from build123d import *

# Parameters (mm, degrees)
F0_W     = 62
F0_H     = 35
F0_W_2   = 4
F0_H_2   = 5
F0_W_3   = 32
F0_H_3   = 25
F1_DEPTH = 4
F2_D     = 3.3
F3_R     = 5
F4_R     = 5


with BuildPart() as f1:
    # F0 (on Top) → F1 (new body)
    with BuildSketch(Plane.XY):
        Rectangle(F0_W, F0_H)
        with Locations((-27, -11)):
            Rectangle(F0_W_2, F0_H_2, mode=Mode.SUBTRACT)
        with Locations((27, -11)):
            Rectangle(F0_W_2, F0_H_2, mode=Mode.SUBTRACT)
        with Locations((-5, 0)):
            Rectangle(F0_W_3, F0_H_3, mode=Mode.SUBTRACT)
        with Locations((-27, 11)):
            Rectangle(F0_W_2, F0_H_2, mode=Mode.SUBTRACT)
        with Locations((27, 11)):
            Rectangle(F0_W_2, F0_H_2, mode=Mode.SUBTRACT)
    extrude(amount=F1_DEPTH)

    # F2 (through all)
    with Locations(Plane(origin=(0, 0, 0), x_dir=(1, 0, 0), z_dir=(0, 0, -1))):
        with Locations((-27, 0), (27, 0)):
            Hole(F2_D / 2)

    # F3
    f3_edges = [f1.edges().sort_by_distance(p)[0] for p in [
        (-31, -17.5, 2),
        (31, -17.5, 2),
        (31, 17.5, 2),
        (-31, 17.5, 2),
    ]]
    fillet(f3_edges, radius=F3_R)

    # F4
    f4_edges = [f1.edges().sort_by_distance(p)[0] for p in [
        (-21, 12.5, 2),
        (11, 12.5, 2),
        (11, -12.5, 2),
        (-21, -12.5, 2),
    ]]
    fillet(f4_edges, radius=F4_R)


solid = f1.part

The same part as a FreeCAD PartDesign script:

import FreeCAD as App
import Part
import Sketcher

V = App.Vector


def edges_at(feature, points):
    """Names of the edges that pass closest to the given points."""
    edges = feature.Shape.Edges
    near = lambda p: min(range(len(edges)), key=lambda i: edges[i].distToShape(Part.Vertex(*p))[0])
    return sorted({f"Edge{near(p) + 1}" for p in points})


def add_polygon(sketch, points):
    """Adds a closed chain of lines whose ends are joined by coincident constraints."""
    first, n = sketch.GeometryCount, len(points)
    for a, b in zip(points, points[1:] + points[:1]):
        sketch.addGeometry(Part.LineSegment(App.Vector(*a, 0), App.Vector(*b, 0)), False)
    for i in range(n):
        sketch.addConstraint(Sketcher.Constraint("Coincident", first + i, 2, first + (i + 1) % n, 1))

doc = App.newDocument("Part")
body = doc.addObject("PartDesign::Body", "Body")

sketch1 = body.newObject("Sketcher::SketchObject", "Sketch")
sketch1.AttachmentSupport = (doc.getObject("XY_Plane"), [""])
sketch1.MapMode = "FlatFace"
add_polygon(sketch1, [(-31, 17.5), (-31, -17.5), (31, -17.5), (31, 17.5)])
add_polygon(sketch1, [(-25, -13.5), (-29, -13.5), (-29, -8.5), (-25, -8.5)])
add_polygon(sketch1, [(29, -13.5), (25, -13.5), (25, -8.5), (29, -8.5)])
add_polygon(sketch1, [(11, -12.5), (-21, -12.5), (-21, 12.5), (11, 12.5)])
add_polygon(sketch1, [(-25, 8.5), (-29, 8.5), (-29, 13.5), (-25, 13.5)])
add_polygon(sketch1, [(29, 8.5), (25, 8.5), (25, 13.5), (29, 13.5)])
sketch1.addConstraint([
    Sketcher.Constraint("Vertical", 0),
    Sketcher.Constraint("Horizontal", 1),
    Sketcher.Constraint("Vertical", 2),
    Sketcher.Constraint("Horizontal", 3),
    Sketcher.Constraint("Horizontal", 4),
    Sketcher.Constraint("Vertical", 5),
    Sketcher.Constraint("Horizontal", 6),
    Sketcher.Constraint("Vertical", 7),
    Sketcher.Constraint("Horizontal", 8),
    Sketcher.Constraint("Vertical", 9),
    Sketcher.Constraint("Horizontal", 10),
    Sketcher.Constraint("Vertical", 11),
    Sketcher.Constraint("Horizontal", 12),
    Sketcher.Constraint("Vertical", 13),
    Sketcher.Constraint("Horizontal", 14),
    Sketcher.Constraint("Vertical", 15),
    Sketcher.Constraint("Horizontal", 16),
    Sketcher.Constraint("Vertical", 17),
    Sketcher.Constraint("Horizontal", 18),
    Sketcher.Constraint("Vertical", 19),
    Sketcher.Constraint("Horizontal", 20),
    Sketcher.Constraint("Vertical", 21),
    Sketcher.Constraint("Horizontal", 22),
    Sketcher.Constraint("Vertical", 23),
    Sketcher.Constraint("Symmetric", 0, 2, 2, 2, -1, 1),
    Sketcher.Constraint("Symmetric", 10, 2, 16, 2, -1, 1),
    Sketcher.Constraint("Symmetric", 8, 2, 18, 2, -1, 1),
    Sketcher.Constraint("Symmetric", 6, 2, 20, 2, -1, 1),
    Sketcher.Constraint("Symmetric", 4, 2, 22, 2, -1, 1),
    Sketcher.Constraint("Symmetric", 7, 2, 8, 2, -2),
    Sketcher.Constraint("Symmetric", 5, 2, 10, 2, -2),
    Sketcher.Constraint("DistanceX", 1, 1, 1, 2, 62.0),
    Sketcher.Constraint("DistanceX", 4, 2, 4, 1, 4.0),
    Sketcher.Constraint("DistanceX", 12, 2, 12, 1, 32.0),
    Sketcher.Constraint("DistanceY", 0, 2, 0, 1, 35.0),
    Sketcher.Constraint("DistanceY", 5, 1, 5, 2, 5.0),
    Sketcher.Constraint("DistanceY", 13, 1, 13, 2, 25.0),
    Sketcher.Constraint("DistanceX", 4, 2, -1, 1, 29.0),
    Sketcher.Constraint("DistanceX", 12, 2, -1, 1, 21.0),
    Sketcher.Constraint("DistanceY", 0, 2, 4, 2, 4.0),
    Sketcher.Constraint("DistanceY", 7, 2, 12, 2, 1.0),
])
pad1 = body.newObject("PartDesign::Pad", "Pad")
pad1.Profile = sketch1
pad1.Length = 4

sketch2 = body.newObject("Sketcher::SketchObject", "Sketch001")
sketch2.AttachmentSupport = (doc.getObject("XY_Plane"), [""])
sketch2.MapMode = "FlatFace"
sketch2.addGeometry([
    Part.Circle(V(-27, 0, 0), V(0, 0, 1), 1.6),
    Part.Circle(V(27, 0, 0), V(0, 0, 1), 1.6),
], False)
sketch2.addConstraint([
    Sketcher.Constraint("Equal", 0, 1),
    Sketcher.Constraint("Symmetric", 0, 3, 1, 3, -1, 1),
    Sketcher.Constraint("PointOnObject", 0, 3, -1),
    Sketcher.Constraint("Diameter", 0, 3.3),
    Sketcher.Constraint("DistanceX", 0, 3, -1, 1, 27.0),
])
doc.recompute()
hole = body.newObject("PartDesign::Hole", "Hole")
hole.Profile = sketch2
hole.ThreadType = "None"
hole.Diameter = 3.3
hole.DepthType = "ThroughAll"
hole.Reversed = True
doc.recompute()

fillet = body.newObject("PartDesign::Fillet", "Fillet")
fillet.Base = (hole, edges_at(hole, [
    (-31, -17.5, 2),
    (31, -17.5, 2),
    (31, 17.5, 2),
    (-31, 17.5, 2),
]))
fillet.Radius = 5
doc.recompute()

fillet2 = body.newObject("PartDesign::Fillet", "Fillet001")
fillet2.Base = (fillet, edges_at(fillet, [
    (-21, 12.5, 2),
    (11, 12.5, 2),
    (11, -12.5, 2),
    (-21, -12.5, 2),
]))
fillet2.Radius = 5

doc.recompute()
